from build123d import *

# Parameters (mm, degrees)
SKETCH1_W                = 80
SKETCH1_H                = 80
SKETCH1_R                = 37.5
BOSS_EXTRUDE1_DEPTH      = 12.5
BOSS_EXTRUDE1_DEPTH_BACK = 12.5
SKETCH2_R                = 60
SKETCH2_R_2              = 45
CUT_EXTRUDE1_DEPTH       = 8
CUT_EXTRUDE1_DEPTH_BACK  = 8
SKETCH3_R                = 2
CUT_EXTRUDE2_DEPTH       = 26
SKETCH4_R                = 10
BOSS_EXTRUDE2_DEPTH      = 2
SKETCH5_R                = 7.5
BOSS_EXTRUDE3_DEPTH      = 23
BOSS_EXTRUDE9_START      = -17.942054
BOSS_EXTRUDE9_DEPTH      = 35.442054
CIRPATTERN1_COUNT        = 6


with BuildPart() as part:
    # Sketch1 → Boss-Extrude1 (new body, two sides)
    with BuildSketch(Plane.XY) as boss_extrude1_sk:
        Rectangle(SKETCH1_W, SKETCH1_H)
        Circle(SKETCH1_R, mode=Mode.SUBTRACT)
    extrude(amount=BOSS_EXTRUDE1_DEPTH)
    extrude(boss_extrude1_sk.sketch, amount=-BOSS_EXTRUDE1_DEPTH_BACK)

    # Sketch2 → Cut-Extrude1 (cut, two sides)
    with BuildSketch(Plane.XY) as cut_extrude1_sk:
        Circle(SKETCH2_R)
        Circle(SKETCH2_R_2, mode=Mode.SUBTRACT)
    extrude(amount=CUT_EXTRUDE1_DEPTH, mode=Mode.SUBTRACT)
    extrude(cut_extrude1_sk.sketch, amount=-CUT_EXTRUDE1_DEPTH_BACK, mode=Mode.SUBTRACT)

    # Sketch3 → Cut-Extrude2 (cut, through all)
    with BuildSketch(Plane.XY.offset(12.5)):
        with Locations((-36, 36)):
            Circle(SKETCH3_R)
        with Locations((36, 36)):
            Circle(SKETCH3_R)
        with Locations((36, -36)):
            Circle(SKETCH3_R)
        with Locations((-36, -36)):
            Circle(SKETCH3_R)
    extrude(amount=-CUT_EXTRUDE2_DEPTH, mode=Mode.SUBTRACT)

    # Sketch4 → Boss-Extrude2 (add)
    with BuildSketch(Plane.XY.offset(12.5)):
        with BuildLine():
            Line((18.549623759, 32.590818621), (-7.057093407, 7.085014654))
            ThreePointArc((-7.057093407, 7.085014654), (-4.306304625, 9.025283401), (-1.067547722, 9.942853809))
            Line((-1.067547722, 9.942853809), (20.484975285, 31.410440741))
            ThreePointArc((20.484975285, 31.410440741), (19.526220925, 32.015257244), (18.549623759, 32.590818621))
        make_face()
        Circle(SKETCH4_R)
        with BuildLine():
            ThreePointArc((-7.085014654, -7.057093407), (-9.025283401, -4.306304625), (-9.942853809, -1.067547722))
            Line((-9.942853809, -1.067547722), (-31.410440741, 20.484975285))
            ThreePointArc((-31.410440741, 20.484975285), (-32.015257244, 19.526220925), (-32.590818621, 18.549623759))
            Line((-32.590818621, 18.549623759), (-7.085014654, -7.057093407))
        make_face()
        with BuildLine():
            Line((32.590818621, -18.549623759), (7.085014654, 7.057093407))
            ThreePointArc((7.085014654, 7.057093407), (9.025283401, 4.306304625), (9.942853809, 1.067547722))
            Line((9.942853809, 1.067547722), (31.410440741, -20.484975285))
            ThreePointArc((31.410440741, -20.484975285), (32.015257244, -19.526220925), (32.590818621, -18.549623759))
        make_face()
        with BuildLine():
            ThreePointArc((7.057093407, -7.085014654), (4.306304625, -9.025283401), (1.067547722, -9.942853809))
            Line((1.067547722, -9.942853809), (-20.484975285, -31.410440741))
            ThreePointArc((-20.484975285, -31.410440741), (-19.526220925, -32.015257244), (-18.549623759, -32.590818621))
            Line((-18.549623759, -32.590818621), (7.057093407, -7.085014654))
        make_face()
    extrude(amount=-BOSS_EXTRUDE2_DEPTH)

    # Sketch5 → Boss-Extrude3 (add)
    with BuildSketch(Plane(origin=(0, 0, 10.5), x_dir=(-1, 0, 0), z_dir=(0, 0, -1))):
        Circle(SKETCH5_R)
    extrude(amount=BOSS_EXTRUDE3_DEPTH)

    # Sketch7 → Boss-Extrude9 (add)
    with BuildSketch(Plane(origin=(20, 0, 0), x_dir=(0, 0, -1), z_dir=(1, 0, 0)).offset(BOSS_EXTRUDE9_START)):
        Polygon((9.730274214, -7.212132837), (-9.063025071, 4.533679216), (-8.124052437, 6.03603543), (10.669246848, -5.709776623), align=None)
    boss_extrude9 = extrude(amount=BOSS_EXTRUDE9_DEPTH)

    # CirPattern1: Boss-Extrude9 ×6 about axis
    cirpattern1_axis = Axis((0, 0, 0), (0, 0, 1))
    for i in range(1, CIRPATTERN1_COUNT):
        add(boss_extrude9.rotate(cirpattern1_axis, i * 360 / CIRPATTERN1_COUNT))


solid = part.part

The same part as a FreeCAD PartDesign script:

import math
import FreeCAD as App
import Part
import Sketcher
from FreeCAD import Vector
Q = App.Units.Quantity


def add_polygon(sketch, points):
    """Adds a closed chain of lines whose ends are joined by coincident constraints."""
    first, n = sketch.GeometryCount, len(points)
    for a, b in zip(points, points[1:] + points[:1]):
        sketch.addGeometry(Part.LineSegment(App.Vector(*a, 0), App.Vector(*b, 0)), False)
    for i in range(n):
        sketch.addConstraint(Sketcher.Constraint("Coincident", first + i, 2, first + (i + 1) % n, 1))

doc = App.newDocument("Part")
body = doc.addObject("PartDesign::Body", "Body")

sketch1 = body.newObject("Sketcher::SketchObject", "Sketch")
sketch1.AttachmentSupport = (doc.getObject("XY_Plane"), [""])
sketch1.MapMode = "FlatFace"
add_polygon(sketch1, [(-40, 40), (-40, -40), (40, -40), (40, 40)])
sketch1.addGeometry(Part.Circle(Vector(0, 0, 0), Vector(0, 0, 1), 38), False)
sketch1.addConstraint([
    Sketcher.Constraint("Vertical", 0),
    Sketcher.Constraint("Horizontal", 1),
    Sketcher.Constraint("Vertical", 2),
    Sketcher.Constraint("Horizontal", 3),
    Sketcher.Constraint("Coincident", 4, 3, -1, 1),
    Sketcher.Constraint("Symmetric", 0, 2, 2, 2, -1, 1),
    Sketcher.Constraint("Equal", 3, 0),
    Sketcher.Constraint("Diameter", 4, Q("75 mm")),
    Sketcher.Constraint("DistanceX", 1, 1, 1, 2, Q("80 mm")),
])
pad1 = body.newObject("PartDesign::Pad", "Pad")
pad1.Profile = sketch1
pad1.Type = "TwoLengths"
pad1.Length = 12.5
pad1.Length2 = 12.5

sketch2 = body.newObject("Sketcher::SketchObject", "Sketch001")
sketch2.AttachmentSupport = (doc.getObject("XY_Plane"), [""])
sketch2.MapMode = "FlatFace"
sketch2.addGeometry([
    Part.Circle(Vector(0, 0, 0), Vector(0, 0, 1), 60),
    Part.Circle(Vector(0, 0, 0), Vector(0, 0, 1), 45),
], False)
sketch2.addConstraint([
    Sketcher.Constraint("Coincident", 0, 3, -1, 1),
    Sketcher.Constraint("Coincident", 1, 3, -1, 1),
    Sketcher.Constraint("Diameter", 0, Q("120 mm")),
    Sketcher.Constraint("Diameter", 1, Q("90 mm")),
])
pocket1 = body.newObject("PartDesign::Pocket", "Pocket")
pocket1.Profile = sketch2
pocket1.Type = "TwoLengths"
pocket1.Length = 8
pocket1.Length2 = 8
pocket1.Reversed = True

sketch3 = body.newObject("Sketcher::SketchObject", "Sketch002")
sketch3.AttachmentSupport = (doc.getObject("XY_Plane"), [""])
sketch3.MapMode = "FlatFace"
sketch3.AttachmentOffset = App.Placement(Vector(0, 0, 12.5), App.Rotation())
sketch3.addGeometry([
    Part.Circle(Vector(-36, 36, 0), Vector(0, 0, 1), 2),
    Part.Circle(Vector(36, 36, 0), Vector(0, 0, 1), 2),
    Part.Circle(Vector(36, -36, 0), Vector(0, 0, 1), 2),
    Part.Circle(Vector(-36, -36, 0), Vector(0, 0, 1), 2),
], False)
sketch3.addConstraint([
    Sketcher.Constraint("Equal", 0, 1),
    Sketcher.Constraint("Equal", 1, 2),
    Sketcher.Constraint("Equal", 2, 3),
    Sketcher.Constraint("Symmetric", 0, 3, 2, 3, -1, 1),
    Sketcher.Constraint("Symmetric", 1, 3, 3, 3, -1, 1),
    Sketcher.Constraint("Symmetric", 0, 3, 1, 3, -2),
    Sketcher.Constraint("Diameter", 0, Q("4 mm")),
    Sketcher.Constraint("DistanceX", 0, 3, -1, 1, Q("36 mm")),
    Sketcher.Constraint("DistanceY", -1, 1, 0, 3, Q("36 mm")),
])
pocket2 = body.newObject("PartDesign::Pocket", "Pocket001")
pocket2.Profile = sketch3
pocket2.Type = "ThroughAll"

sketch4 = body.newObject("Sketcher::SketchObject", "Sketch003")
sketch4.AttachmentSupport = (doc.getObject("XY_Plane"), [""])
sketch4.MapMode = "FlatFace"
sketch4.AttachmentOffset = App.Placement(Vector(0, 0, 12.5), App.Rotation())
sketch4.addGeometry([
    Part.LineSegment(Vector(18.5, 32.6, 0), Vector(-7.1, 7.1, 0)),
    Part.ArcOfCircle(Part.Circle(Vector(0, 0, 0), Vector(0, 0, 1), 10), math.radians(135), math.radians(186)),
    Part.LineSegment(Vector(-9.9, -1.1, 0), Vector(-31.4, 20.5, 0)),
    Part.ArcOfCircle(Part.Circle(Vector(0, 0, 0), Vector(0, 0, 1), 37.5), math.radians(146.89), math.radians(150.35)),
    Part.LineSegment(Vector(-32.6, 18.5, 0), Vector(-7.1, -7.1, 0)),
    Part.ArcOfCircle(Part.Circle(Vector(0, 0, 0), Vector(0, 0, 1), 10), math.radians(-135), math.radians(-84)),
    Part.LineSegment(Vector(1.1, -9.9, 0), Vector(-20.5, -31.4, 0)),
    Part.ArcOfCircle(Part.Circle(Vector(0, 0, 0), Vector(0, 0, 1), 37.5), math.radians(-123.11), math.radians(-119.65)),
    Part.LineSegment(Vector(-18.5, -32.6, 0), Vector(7.1, -7.1, 0)),
    Part.ArcOfCircle(Part.Circle(Vector(0, 0, 0), Vector(0, 0, 1), 10), math.radians(-45), math.radians(6)),
    Part.LineSegment(Vector(9.9, 1.1, 0), Vector(31.4, -20.5, 0)),
    Part.ArcOfCircle(Part.Circle(Vector(0, 0, 0), Vector(0, 0, 1), 37.5), math.radians(-33.11), math.radians(-29.65)),
    Part.LineSegment(Vector(32.6, -18.5, 0), Vector(7.1, 7.1, 0)),
    Part.ArcOfCircle(Part.Circle(Vector(0, 0, 0), Vector(0, 0, 1), 10), math.radians(45), math.radians(96)),
    Part.LineSegment(Vector(-1.1, 9.9, 0), Vector(20.5, 31.4, 0)),
    Part.ArcOfCircle(Part.Circle(Vector(0, 0, 0), Vector(0, 0, 1), 37.5), math.radians(56.89), math.radians(60.35)),
], False)
sketch4.addConstraint([
    Sketcher.Constraint("Tangent", 0, 2, 1, 1),
    Sketcher.Constraint("Coincident", 1, 2, 2, 1),
    Sketcher.Constraint("Coincident", 2, 2, 3, 1),
    Sketcher.Constraint("Coincident", 3, 2, 4, 1),
    Sketcher.Constraint("Tangent", 4, 2, 5, 1),
    Sketcher.Constraint("Coincident", 5, 2, 6, 1),
    Sketcher.Constraint("Coincident", 6, 2, 7, 1),
    Sketcher.Constraint("Coincident", 7, 2, 8, 1),
    Sketcher.Constraint("Tangent", 8, 2, 9, 1),
    Sketcher.Constraint("Coincident", 9, 2, 10, 1),
    Sketcher.Constraint("Coincident", 10, 2, 11, 1),
    Sketcher.Constraint("Coincident", 11, 2, 12, 1),
    Sketcher.Constraint("Tangent", 12, 2, 13, 1),
    Sketcher.Constraint("Coincident", 13, 2, 14, 1),
    Sketcher.Constraint("Coincident", 14, 2, 15, 1),
    Sketcher.Constraint("Coincident", 15, 2, 0, 1),
    Sketcher.Constraint("Coincident", 1, 3, -1, 1),
    Sketcher.Constraint("Coincident", 3, 3, -1, 1),
    Sketcher.Constraint("Coincident", 5, 3, -1, 1),
    Sketcher.Constraint("Coincident", 7, 3, -1, 1),
    Sketcher.Constraint("Coincident", 9, 3, -1, 1),
    Sketcher.Constraint("Coincident", 11, 3, -1, 1),
    Sketcher.Constraint("Coincident", 13, 3, -1, 1),
    Sketcher.Constraint("Coincident", 15, 3, -1, 1),
    Sketcher.Constraint("Equal", 1, 5),
    Sketcher.Constraint("Equal", 3, 7),
    Sketcher.Constraint("Equal", 5, 9),
    Sketcher.Constraint("Equal", 7, 11),
    Sketcher.Constraint("Equal", 9, 13),
    Sketcher.Constraint("Equal", 11, 15),
    Sketcher.Constraint("Perpendicular", 0, 2),
    Sketcher.Constraint("Parallel", 2, 4),
    Sketcher.Constraint("Perpendicular", 4, 6),
    Sketcher.Constraint("Parallel", 6, 8),
    Sketcher.Constraint("Perpendicular", 8, 10),
    Sketcher.Constraint("Parallel", 10, 12),
    Sketcher.Constraint("Perpendicular", 12, 14),
    Sketcher.Constraint("Equal", 2, 6),
    Sketcher.Constraint("Equal", 6, 10),
    Sketcher.Constraint("Equal", 10, 14),
    Sketcher.Constraint("Radius", 1, Q("10 mm")),
    Sketcher.Constraint("Radius", 3, Q("37.499999 mm")),
    Sketcher.Constraint("Distance", 2, Q("30.419871 mm")),
    Sketcher.Constraint("DistanceX", 2, 2, -1, 1, Q("31.410441 mm")),
])
pad2 = body.newObject("PartDesign::Pad", "Pad001")
pad2.Profile = sketch4
pad2.Length = 2
pad2.Reversed = True

sketch5 = body.newObject("Sketcher::SketchObject", "Sketch004")
sketch5.AttachmentSupport = (doc.getObject("XY_Plane"), [""])
sketch5.MapMode = "FlatFace"
sketch5.AttachmentOffset = App.Placement(Vector(0, 0, 10.5), App.Rotation())
sketch5.addGeometry(Part.Circle(Vector(0, 0, 0), Vector(0, 0, 1), 8), False)
sketch5.addConstraint([
    Sketcher.Constraint("Coincident", 0, 3, -1, 1),
    Sketcher.Constraint("Diameter", 0, Q("15 mm")),
])
pad3 = body.newObject("PartDesign::Pad", "Pad002")
pad3.Profile = sketch5
pad3.Length = 23
pad3.Reversed = True

sketch6 = body.newObject("Sketcher::SketchObject", "Sketch005")
sketch6.AttachmentSupport = (doc.getObject("YZ_Plane"), [""])
sketch6.MapMode = "FlatFace"
sketch6.AttachmentOffset = App.Placement(Vector(0, 0, 2.057946), App.Rotation())
add_polygon(sketch6, [(4.5, 9.1), (-7.2, -9.7), (-5.7, -10.7), (6, 8.1)])
sketch6.addConstraint([
    Sketcher.Constraint("Perpendicular", 0, 1),
    Sketcher.Constraint("Perpendicular", 1, 2),
    Sketcher.Constraint("Perpendicular", 2, 3),
    Sketcher.Constraint("DistanceY", 1, 2, 2, 2, Q("18.793299 mm")),
    Sketcher.Constraint("Distance", 1, Q("1.77165 mm")),
    Sketcher.Constraint("DistanceX", -1, 1, 3, 2, Q("4.533679 mm")),
    Sketcher.Constraint("DistanceX", 0, 2, 2, 2, Q("13.248168 mm")),
    Sketcher.Constraint("DistanceY", 0, 2, -1, 1, Q("9.730274 mm")),
])
pad4 = body.newObject("PartDesign::Pad", "Pad003")
pad4.Profile = sketch6
pad4.Length = 35.442054
doc.recompute()

polarpattern = body.newObject("PartDesign::PolarPattern", "PolarPattern")
polarpattern.Originals = [pad4]
polarpattern.Axis = (doc.getObject("Z_Axis"), [""])
polarpattern.Angle = 360
polarpattern.Occurrences = 6
body.Tip = polarpattern

doc.recompute()
